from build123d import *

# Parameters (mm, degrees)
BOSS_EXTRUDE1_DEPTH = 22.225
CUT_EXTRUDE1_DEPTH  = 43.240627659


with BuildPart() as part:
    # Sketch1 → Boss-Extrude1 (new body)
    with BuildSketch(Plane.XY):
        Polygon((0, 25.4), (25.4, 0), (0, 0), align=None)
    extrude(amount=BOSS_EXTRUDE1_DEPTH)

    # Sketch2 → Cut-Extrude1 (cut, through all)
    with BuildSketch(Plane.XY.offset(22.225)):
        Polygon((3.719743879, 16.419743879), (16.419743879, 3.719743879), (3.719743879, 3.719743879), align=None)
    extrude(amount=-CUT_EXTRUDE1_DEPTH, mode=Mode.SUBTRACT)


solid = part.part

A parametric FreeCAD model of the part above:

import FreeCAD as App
import Part
import Sketcher
Q = App.Units.Quantity


def add_polygon(sketch, points):
    """Adds a closed chain of lines whose ends are joined by coincident constraints."""
    first, n = sketch.GeometryCount, len(points)
    for a, b in zip(points, points[1:] + points[:1]):
        sketch.addGeometry(Part.LineSegment(App.Vector(*a, 0), App.Vector(*b, 0)), False)
    for i in range(n):
        sketch.addConstraint(Sketcher.Constraint("Coincident", first + i, 2, first + (i + 1) % n, 1))

doc = App.newDocument("Part")
params = doc.addObject("Spreadsheet::Sheet", "Params")
for row, (alias, value) in enumerate([
    ("sketch1_width", "1 in"),
    ("pad1_length", "0.875 in"),
    ("sketch2_width", "0.5 in"),
], start=1):
    params.set(f"A{row}", alias)
    params.set(f"B{row}", "=" + value)
    params.setAlias(f"B{row}", alias)

body = doc.addObject("PartDesign::Body", "Body")

# Sketch on XY plane
sketch1 = body.newObject("Sketcher::SketchObject", "Sketch")
sketch1.AttachmentSupport = (doc.getObject("XY_Plane"), [""])
sketch1.MapMode = "FlatFace"
add_polygon(sketch1, [(25, 0), (0, 25), (0, 0)])  # lines 0-2
sketch1.addConstraint([
    Sketcher.Constraint("Vertical", 1),
    Sketcher.Constraint("Horizontal", 2),
    Sketcher.Constraint("Coincident", 1, 2, -1, 1),
    Sketcher.Constraint("Equal", 2, 1),
    Sketcher.Constraint("DistanceX", 2, 1, 2, 2, Q("1 in")),
])
sketch1.setExpression("Constraints[7]", "Params.sketch1_width")
pad1 = body.newObject("PartDesign::Pad", "Pad")
pad1.Profile = sketch1
pad1.setExpression("Length", "Params.pad1_length")

# Sketch on XY plane
sketch2 = body.newObject("Sketcher::SketchObject", "Sketch001")
sketch2.AttachmentSupport = (doc.getObject("XY_Plane"), [""])
sketch2.MapMode = "FlatFace"
sketch2.AttachmentOffset = App.Placement(App.Vector(0, 0, 0.875 * 25.4), App.Rotation())
add_polygon(sketch2, [(16, 4), (4, 16), (4, 4)])  # lines 0-2
sketch2.addConstraint([
    Sketcher.Constraint("Vertical", 1),
    Sketcher.Constraint("Horizontal", 2),
    Sketcher.Constraint("Equal", 2, 1),
    Sketcher.Constraint("DistanceX", 2, 1, 2, 2, Q("0.5 in")),
    Sketcher.Constraint("DistanceX", -1, 1, 0, 2, 3.719744),
    Sketcher.Constraint("DistanceY", -1, 1, 0, 2, 16.419744),
])
sketch2.setExpression("Constraints[6]", "Params.sketch2_width")
pocket1 = body.newObject("PartDesign::Pocket", "Pocket")
pocket1.Profile = sketch2
pocket1.Type = "ThroughAll"

doc.recompute()
